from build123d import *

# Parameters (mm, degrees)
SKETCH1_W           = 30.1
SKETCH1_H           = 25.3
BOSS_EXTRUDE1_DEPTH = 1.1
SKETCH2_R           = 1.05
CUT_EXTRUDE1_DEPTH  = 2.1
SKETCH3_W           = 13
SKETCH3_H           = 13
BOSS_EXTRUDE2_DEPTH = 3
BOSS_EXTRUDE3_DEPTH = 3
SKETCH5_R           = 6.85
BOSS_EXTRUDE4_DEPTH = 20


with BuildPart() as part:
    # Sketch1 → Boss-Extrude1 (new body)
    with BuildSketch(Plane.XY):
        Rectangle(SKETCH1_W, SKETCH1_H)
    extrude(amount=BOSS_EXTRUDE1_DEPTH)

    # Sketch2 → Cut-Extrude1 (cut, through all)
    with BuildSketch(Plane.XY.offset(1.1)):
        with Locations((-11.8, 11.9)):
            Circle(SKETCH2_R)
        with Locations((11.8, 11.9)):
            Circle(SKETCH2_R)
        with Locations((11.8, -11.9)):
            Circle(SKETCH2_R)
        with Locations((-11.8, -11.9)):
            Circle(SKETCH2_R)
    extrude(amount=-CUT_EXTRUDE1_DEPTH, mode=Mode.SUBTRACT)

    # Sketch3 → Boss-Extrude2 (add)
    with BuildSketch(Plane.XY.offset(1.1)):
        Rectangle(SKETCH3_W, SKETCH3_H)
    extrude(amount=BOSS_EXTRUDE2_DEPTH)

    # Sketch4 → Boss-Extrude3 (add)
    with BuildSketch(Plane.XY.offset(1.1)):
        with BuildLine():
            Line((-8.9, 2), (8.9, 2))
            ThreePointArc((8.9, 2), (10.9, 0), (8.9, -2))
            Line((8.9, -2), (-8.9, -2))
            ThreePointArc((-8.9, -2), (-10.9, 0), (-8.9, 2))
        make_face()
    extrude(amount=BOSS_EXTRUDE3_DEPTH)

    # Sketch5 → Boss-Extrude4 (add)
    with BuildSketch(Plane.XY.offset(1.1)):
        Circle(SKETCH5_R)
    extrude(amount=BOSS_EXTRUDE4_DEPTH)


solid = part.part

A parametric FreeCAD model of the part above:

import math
import FreeCAD as App
import Part
import Sketcher
Q = App.Units.Quantity

doc = App.newDocument("Part")
params = doc.addObject("Spreadsheet::Sheet", "Params")
for row, (alias, value) in enumerate([
    ("sketch1_width", "30.1 mm"),
    ("sketch1_height", "25.3 mm"),
    ("pad1_length", "1.1 mm"),
    ("sketch2_diameter", "2.1 mm"),
    ("sketch3_width", "13 mm"),
    ("pad2_length", "3 mm"),
    ("sketch4_radius", "2 mm"),
    ("sketch4_width", "17.8 mm"),
    ("pad3_length", "3 mm"),
    ("sketch5_diameter", "13.7 mm"),
    ("pad4_length", "20 mm"),
], start=1):
    params.set(f"A{row}", alias)
    params.set(f"B{row}", "=" + value)
    params.setAlias(f"B{row}", alias)

body = doc.addObject("PartDesign::Body", "Body")

# Sketch on XY plane
sketch1 = body.newObject("Sketcher::SketchObject", "Sketch")
sketch1.AttachmentSupport = (doc.getObject("XY_Plane"), [""])
sketch1.MapMode = "FlatFace"
sketch1.addGeometry(Part.LineSegment(App.Vector(-15, 13, 0), App.Vector(-15, -13, 0)), False)
sketch1.addGeometry(Part.LineSegment(App.Vector(-15, -13, 0), App.Vector(15, -13, 0)), False)
sketch1.addGeometry(Part.LineSegment(App.Vector(15, -13, 0), App.Vector(15, 13, 0)), False)
sketch1.addGeometry(Part.LineSegment(App.Vector(15, 13, 0), App.Vector(-15, 13, 0)), False)
sketch1.addConstraint(Sketcher.Constraint("Coincident", 0, 2, 1, 1))
sketch1.addConstraint(Sketcher.Constraint("Coincident", 1, 2, 2, 1))
sketch1.addConstraint(Sketcher.Constraint("Coincident", 2, 2, 3, 1))
sketch1.addConstraint(Sketcher.Constraint("Coincident", 3, 2, 0, 1))
sketch1.addConstraint(Sketcher.Constraint("Vertical", 0))
sketch1.addConstraint(Sketcher.Constraint("Horizontal", 1))
sketch1.addConstraint(Sketcher.Constraint("Vertical", 2))
sketch1.addConstraint(Sketcher.Constraint("Horizontal", 3))
sketch1.addConstraint(Sketcher.Constraint("Symmetric", 0, 2, 2, 2, -1, 1))
sketch1.addConstraint(Sketcher.Constraint("DistanceX", 1, 1, 1, 2, Q("30.1 mm")))
sketch1.addConstraint(Sketcher.Constraint("DistanceY", 0, 2, 0, 1, Q("25.3 mm")))
sketch1.setExpression("Constraints[9]", "Params.sketch1_width")
sketch1.setExpression("Constraints[10]", "Params.sketch1_height")
pad1 = body.newObject("PartDesign::Pad", "Pad")
pad1.Profile = sketch1
pad1.setExpression("Length", "Params.pad1_length")

# Sketch on XY plane
sketch2 = body.newObject("Sketcher::SketchObject", "Sketch001")
sketch2.AttachmentSupport = (doc.getObject("XY_Plane"), [""])
sketch2.MapMode = "FlatFace"
sketch2.AttachmentOffset = App.Placement(App.Vector(0, 0, 1.1), App.Rotation())
sketch2.addGeometry(Part.Circle(App.Vector(-11.8, 11.9, 0), App.Vector(0, 0, 1), 1.1), False)
sketch2.addGeometry(Part.Circle(App.Vector(11.8, 11.9, 0), App.Vector(0, 0, 1), 1.1), False)
sketch2.addGeometry(Part.Circle(App.Vector(11.8, -11.9, 0), App.Vector(0, 0, 1), 1.1), False)
sketch2.addGeometry(Part.Circle(App.Vector(-11.8, -11.9, 0), App.Vector(0, 0, 1), 1.1), False)
sketch2.addConstraint(Sketcher.Constraint("Equal", 0, 1))
sketch2.addConstraint(Sketcher.Constraint("Equal", 1, 2))
sketch2.addConstraint(Sketcher.Constraint("Equal", 2, 3))
sketch2.addConstraint(Sketcher.Constraint("Symmetric", 0, 3, 2, 3, -1, 1))
sketch2.addConstraint(Sketcher.Constraint("Symmetric", 1, 3, 3, 3, -1, 1))
sketch2.addConstraint(Sketcher.Constraint("Symmetric", 0, 3, 1, 3, -2))
sketch2.addConstraint(Sketcher.Constraint("Diameter", 0, Q("2.1 mm")))
sketch2.addConstraint(Sketcher.Constraint("DistanceX", 0, 3, -1, 1, Q("11.8 mm")))
sketch2.addConstraint(Sketcher.Constraint("DistanceY", -1, 1, 0, 3, Q("11.9 mm")))
sketch2.setExpression("Constraints[6]", "Params.sketch2_diameter")
pocket1 = body.newObject("PartDesign::Pocket", "Pocket")
pocket1.Profile = sketch2
pocket1.Type = "ThroughAll"

# Sketch on XY plane
sketch3 = body.newObject("Sketcher::SketchObject", "Sketch002")
sketch3.AttachmentSupport = (doc.getObject("XY_Plane"), [""])
sketch3.MapMode = "FlatFace"
sketch3.AttachmentOffset = App.Placement(App.Vector(0, 0, 1.1), App.Rotation())
sketch3.addGeometry(Part.LineSegment(App.Vector(-6, 6, 0), App.Vector(-6, -6, 0)), False)
sketch3.addGeometry(Part.LineSegment(App.Vector(-6, -6, 0), App.Vector(6, -6, 0)), False)
sketch3.addGeometry(Part.LineSegment(App.Vector(6, -6, 0), App.Vector(6, 6, 0)), False)
sketch3.addGeometry(Part.LineSegment(App.Vector(6, 6, 0), App.Vector(-6, 6, 0)), False)
sketch3.addConstraint(Sketcher.Constraint("Coincident", 0, 2, 1, 1))
sketch3.addConstraint(Sketcher.Constraint("Coincident", 1, 2, 2, 1))
sketch3.addConstraint(Sketcher.Constraint("Coincident", 2, 2, 3, 1))
sketch3.addConstraint(Sketcher.Constraint("Coincident", 3, 2, 0, 1))
sketch3.addConstraint(Sketcher.Constraint("Vertical", 0))
sketch3.addConstraint(Sketcher.Constraint("Horizontal", 1))
sketch3.addConstraint(Sketcher.Constraint("Vertical", 2))
sketch3.addConstraint(Sketcher.Constraint("Horizontal", 3))
sketch3.addConstraint(Sketcher.Constraint("Symmetric", 0, 2, 2, 2, -1, 1))
sketch3.addConstraint(Sketcher.Constraint("Equal", 3, 0))
sketch3.addConstraint(Sketcher.Constraint("DistanceX", 1, 1, 1, 2, Q("13 mm")))
sketch3.setExpression("Constraints[10]", "Params.sketch3_width")
pad2 = body.newObject("PartDesign::Pad", "Pad001")
pad2.Profile = sketch3
pad2.setExpression("Length", "Params.pad2_length")

# Sketch on XY plane
sketch4 = body.newObject("Sketcher::SketchObject", "Sketch003")
sketch4.AttachmentSupport = (doc.getObject("XY_Plane"), [""])
sketch4.MapMode = "FlatFace"
sketch4.AttachmentOffset = App.Placement(App.Vector(0, 0, 1.1), App.Rotation())
sketch4.addGeometry(Part.LineSegment(App.Vector(8.9, 2, 0), App.Vector(-8.9, 2, 0)), False)
sketch4.addGeometry(Part.ArcOfCircle(Part.Circle(App.Vector(-8.9, 0, 0), App.Vector(0, 0, 1), 2), math.radians(90), math.radians(270)), False)
sketch4.addGeometry(Part.LineSegment(App.Vector(-8.9, -2, 0), App.Vector(8.9, -2, 0)), False)
sketch4.addGeometry(Part.ArcOfCircle(Part.Circle(App.Vector(8.9, 0, 0), App.Vector(0, 0, 1), 2), math.radians(-90), math.radians(90)), False)
sketch4.addConstraint(Sketcher.Constraint("Tangent", 0, 2, 1, 1))
sketch4.addConstraint(Sketcher.Constraint("Tangent", 1, 2, 2, 1))
sketch4.addConstraint(Sketcher.Constraint("Tangent", 2, 2, 3, 1))
sketch4.addConstraint(Sketcher.Constraint("Tangent", 3, 2, 0, 1))
sketch4.addConstraint(Sketcher.Constraint("Horizontal", 0))
sketch4.addConstraint(Sketcher.Constraint("Horizontal", 2))
sketch4.addConstraint(Sketcher.Constraint("Symmetric", 1, 3, 3, 3, -1, 1))
sketch4.addConstraint(Sketcher.Constraint("Radius", 1, Q("2 mm")))
sketch4.addConstraint(Sketcher.Constraint("DistanceX", 0, 2, 0, 1, Q("17.8 mm")))
sketch4.setExpression("Constraints[7]", "Params.sketch4_radius")
sketch4.setExpression("Constraints[8]", "Params.sketch4_width")
pad3 = body.newObject("PartDesign::Pad", "Pad002")
pad3.Profile = sketch4
pad3.setExpression("Length", "Params.pad3_length")

# Sketch on XY plane
sketch5 = body.newObject("Sketcher::SketchObject", "Sketch004")
sketch5.AttachmentSupport = (doc.getObject("XY_Plane"), [""])
sketch5.MapMode = "FlatFace"
sketch5.AttachmentOffset = App.Placement(App.Vector(0, 0, 1.1), App.Rotation())
sketch5.addGeometry(Part.Circle(App.Vector(0, 0, 0), App.Vector(0, 0, 1), 7), False)
sketch5.addConstraint(Sketcher.Constraint("Coincident", 0, 3, -1, 1))
sketch5.addConstraint(Sketcher.Constraint("Diameter", 0, Q("13.7 mm")))
sketch5.setExpression("Constraints[1]", "Params.sketch5_diameter")
pad4 = body.newObject("PartDesign::Pad", "Pad003")
pad4.Profile = sketch5
pad4.setExpression("Length", "Params.pad4_length")

doc.recompute()
